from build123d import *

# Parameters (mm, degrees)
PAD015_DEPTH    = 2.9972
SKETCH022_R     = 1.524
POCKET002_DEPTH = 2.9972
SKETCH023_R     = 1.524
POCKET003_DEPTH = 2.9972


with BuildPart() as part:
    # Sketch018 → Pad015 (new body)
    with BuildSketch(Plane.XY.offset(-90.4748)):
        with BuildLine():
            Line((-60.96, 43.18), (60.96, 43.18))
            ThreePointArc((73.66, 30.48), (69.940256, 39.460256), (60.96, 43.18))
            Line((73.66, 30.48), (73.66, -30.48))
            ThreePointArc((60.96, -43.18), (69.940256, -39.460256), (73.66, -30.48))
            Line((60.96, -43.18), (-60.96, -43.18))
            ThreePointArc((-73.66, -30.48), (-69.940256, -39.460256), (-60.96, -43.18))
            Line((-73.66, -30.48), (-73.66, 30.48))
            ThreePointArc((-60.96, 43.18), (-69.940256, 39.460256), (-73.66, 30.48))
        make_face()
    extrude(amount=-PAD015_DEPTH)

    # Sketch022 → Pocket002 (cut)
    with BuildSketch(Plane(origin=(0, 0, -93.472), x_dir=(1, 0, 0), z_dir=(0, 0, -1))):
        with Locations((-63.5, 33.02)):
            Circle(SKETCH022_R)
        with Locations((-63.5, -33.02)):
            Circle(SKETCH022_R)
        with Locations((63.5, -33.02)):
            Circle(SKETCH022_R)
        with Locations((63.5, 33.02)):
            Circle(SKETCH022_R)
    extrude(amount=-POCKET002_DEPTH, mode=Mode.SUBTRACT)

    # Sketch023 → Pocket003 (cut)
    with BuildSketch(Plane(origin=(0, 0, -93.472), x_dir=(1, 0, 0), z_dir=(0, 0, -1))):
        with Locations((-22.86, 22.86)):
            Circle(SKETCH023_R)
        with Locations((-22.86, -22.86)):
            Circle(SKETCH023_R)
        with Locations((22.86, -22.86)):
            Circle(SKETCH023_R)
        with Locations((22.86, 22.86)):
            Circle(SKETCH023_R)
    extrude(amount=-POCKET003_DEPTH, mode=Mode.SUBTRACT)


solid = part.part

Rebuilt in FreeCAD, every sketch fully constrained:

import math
import FreeCAD as App
import Part
import Sketcher
from FreeCAD import Vector
Q = App.Units.Quantity

doc = App.newDocument("Part")
body = doc.addObject("PartDesign::Body", "Body")

# Sketch on XY plane
sketch1 = body.newObject("Sketcher::SketchObject", "Sketch")
sketch1.AttachmentSupport = (doc.getObject("XY_Plane"), [""])
sketch1.MapMode = "FlatFace"
sketch1.AttachmentOffset = App.Placement(Vector(0, 0, -3.562 * 25.4), App.Rotation())
sketch1.addGeometry([
    Part.LineSegment(Vector(61, 43, 0), Vector(-61, 43, 0)),  # 0
    Part.ArcOfCircle(Part.Circle(Vector(-61, 30, 0), Vector(0, 0, 1), 13), math.radians(90), math.radians(180)),  # 1
    Part.LineSegment(Vector(-74, 30, 0), Vector(-74, -30, 0)),  # 2
    Part.ArcOfCircle(Part.Circle(Vector(-61, -30, 0), Vector(0, 0, 1), 13), math.radians(-180), math.radians(-90)),  # 3
    Part.LineSegment(Vector(-61, -43, 0), Vector(61, -43, 0)),  # 4
    Part.ArcOfCircle(Part.Circle(Vector(61, -30, 0), Vector(0, 0, 1), 13), math.radians(-90), math.radians(0)),  # 5
    Part.LineSegment(Vector(74, -30, 0), Vector(74, 30, 0)),  # 6
    Part.ArcOfCircle(Part.Circle(Vector(61, 30, 0), Vector(0, 0, 1), 13), math.radians(0), math.radians(90)),  # 7
], False)
sketch1.addConstraint([
    Sketcher.Constraint("Tangent", 0, 2, 1, 1),
    Sketcher.Constraint("Tangent", 1, 2, 2, 1),
    Sketcher.Constraint("Tangent", 2, 2, 3, 1),
    Sketcher.Constraint("Tangent", 3, 2, 4, 1),
    Sketcher.Constraint("Tangent", 4, 2, 5, 1),
    Sketcher.Constraint("Tangent", 5, 2, 6, 1),
    Sketcher.Constraint("Tangent", 6, 2, 7, 1),
    Sketcher.Constraint("Tangent", 7, 2, 0, 1),
    Sketcher.Constraint("Horizontal", 0),
    Sketcher.Constraint("Vertical", 2),
    Sketcher.Constraint("Horizontal", 4),
    Sketcher.Constraint("Vertical", 6),
    Sketcher.Constraint("Equal", 1, 3),
    Sketcher.Constraint("Equal", 3, 5),
    Sketcher.Constraint("Equal", 5, 7),
    Sketcher.Constraint("Symmetric", 1, 3, 5, 3, -1, 1),
    Sketcher.Constraint("Radius", 1, Q("0.5 in")),
    Sketcher.Constraint("DistanceX", 0, 2, 0, 1, Q("4.8 in")),
    Sketcher.Constraint("DistanceY", 2, 2, 2, 1, Q("2.4 in")),
])
pad1 = body.newObject("PartDesign::Pad", "Pad")
pad1.Profile = sketch1
pad1.Length = Q("0.118 in")
pad1.Reversed = True

# Sketch on XY plane
sketch2 = body.newObject("Sketcher::SketchObject", "Sketch001")
sketch2.AttachmentSupport = (doc.getObject("XY_Plane"), [""])
sketch2.MapMode = "FlatFace"
sketch2.AttachmentOffset = App.Placement(Vector(0, 0, -3.68 * 25.4), App.Rotation())
sketch2.addGeometry([
    Part.Circle(Vector(-63.5, -33, 0), Vector(0, 0, 1), 1.5),
    Part.Circle(Vector(-63.5, 33, 0), Vector(0, 0, 1), 1.5),
    Part.Circle(Vector(63.5, 33, 0), Vector(0, 0, 1), 1.5),
    Part.Circle(Vector(63.5, -33, 0), Vector(0, 0, 1), 1.5),
], False)
sketch2.addConstraint([
    Sketcher.Constraint("Equal", 0, 1),
    Sketcher.Constraint("Equal", 1, 2),
    Sketcher.Constraint("Equal", 2, 3),
    Sketcher.Constraint("Symmetric", 0, 3, 2, 3, -1, 1),
    Sketcher.Constraint("Symmetric", 1, 3, 3, 3, -1, 1),
    Sketcher.Constraint("Symmetric", 1, 3, 2, 3, -2),
    Sketcher.Constraint("Diameter", 0, Q("0.12 in")),
    Sketcher.Constraint("DistanceX", 1, 3, 2, 3, Q("5 in")),
    Sketcher.Constraint("DistanceY", 0, 3, -1, 1, Q("1.3 in")),
])
pocket1 = body.newObject("PartDesign::Pocket", "Pocket")
pocket1.Profile = sketch2
pocket1.Length = Q("0.118 in")
pocket1.Reversed = True

# Sketch on XY plane
sketch3 = body.newObject("Sketcher::SketchObject", "Sketch002")
sketch3.AttachmentSupport = (doc.getObject("XY_Plane"), [""])
sketch3.MapMode = "FlatFace"
sketch3.AttachmentOffset = App.Placement(Vector(0, 0, -3.68 * 25.4), App.Rotation())
sketch3.addGeometry([
    Part.Circle(Vector(-22.9, -22.9, 0), Vector(0, 0, 1), 1.5),
    Part.Circle(Vector(-22.9, 22.9, 0), Vector(0, 0, 1), 1.5),
    Part.Circle(Vector(22.9, 22.9, 0), Vector(0, 0, 1), 1.5),
    Part.Circle(Vector(22.9, -22.9, 0), Vector(0, 0, 1), 1.5),
], False)
sketch3.addConstraint([
    Sketcher.Constraint("Equal", 0, 1),
    Sketcher.Constraint("Equal", 1, 2),
    Sketcher.Constraint("Equal", 2, 3),
    Sketcher.Constraint("Symmetric", 0, 3, 2, 3, -1, 1),
    Sketcher.Constraint("Symmetric", 1, 3, 3, 3, -1, 1),
    Sketcher.Constraint("Symmetric", 1, 3, 2, 3, -2),
    Sketcher.Constraint("Diameter", 0, Q("0.12 in")),
    Sketcher.Constraint("DistanceX", 0, 3, -1, 1, Q("0.9 in")),
    Sketcher.Constraint("DistanceY", 0, 3, -1, 1, Q("0.9 in")),
])
pocket2 = body.newObject("PartDesign::Pocket", "Pocket001")
pocket2.Profile = sketch3
pocket2.Length = Q("0.118 in")
pocket2.Reversed = True

doc.recompute()
